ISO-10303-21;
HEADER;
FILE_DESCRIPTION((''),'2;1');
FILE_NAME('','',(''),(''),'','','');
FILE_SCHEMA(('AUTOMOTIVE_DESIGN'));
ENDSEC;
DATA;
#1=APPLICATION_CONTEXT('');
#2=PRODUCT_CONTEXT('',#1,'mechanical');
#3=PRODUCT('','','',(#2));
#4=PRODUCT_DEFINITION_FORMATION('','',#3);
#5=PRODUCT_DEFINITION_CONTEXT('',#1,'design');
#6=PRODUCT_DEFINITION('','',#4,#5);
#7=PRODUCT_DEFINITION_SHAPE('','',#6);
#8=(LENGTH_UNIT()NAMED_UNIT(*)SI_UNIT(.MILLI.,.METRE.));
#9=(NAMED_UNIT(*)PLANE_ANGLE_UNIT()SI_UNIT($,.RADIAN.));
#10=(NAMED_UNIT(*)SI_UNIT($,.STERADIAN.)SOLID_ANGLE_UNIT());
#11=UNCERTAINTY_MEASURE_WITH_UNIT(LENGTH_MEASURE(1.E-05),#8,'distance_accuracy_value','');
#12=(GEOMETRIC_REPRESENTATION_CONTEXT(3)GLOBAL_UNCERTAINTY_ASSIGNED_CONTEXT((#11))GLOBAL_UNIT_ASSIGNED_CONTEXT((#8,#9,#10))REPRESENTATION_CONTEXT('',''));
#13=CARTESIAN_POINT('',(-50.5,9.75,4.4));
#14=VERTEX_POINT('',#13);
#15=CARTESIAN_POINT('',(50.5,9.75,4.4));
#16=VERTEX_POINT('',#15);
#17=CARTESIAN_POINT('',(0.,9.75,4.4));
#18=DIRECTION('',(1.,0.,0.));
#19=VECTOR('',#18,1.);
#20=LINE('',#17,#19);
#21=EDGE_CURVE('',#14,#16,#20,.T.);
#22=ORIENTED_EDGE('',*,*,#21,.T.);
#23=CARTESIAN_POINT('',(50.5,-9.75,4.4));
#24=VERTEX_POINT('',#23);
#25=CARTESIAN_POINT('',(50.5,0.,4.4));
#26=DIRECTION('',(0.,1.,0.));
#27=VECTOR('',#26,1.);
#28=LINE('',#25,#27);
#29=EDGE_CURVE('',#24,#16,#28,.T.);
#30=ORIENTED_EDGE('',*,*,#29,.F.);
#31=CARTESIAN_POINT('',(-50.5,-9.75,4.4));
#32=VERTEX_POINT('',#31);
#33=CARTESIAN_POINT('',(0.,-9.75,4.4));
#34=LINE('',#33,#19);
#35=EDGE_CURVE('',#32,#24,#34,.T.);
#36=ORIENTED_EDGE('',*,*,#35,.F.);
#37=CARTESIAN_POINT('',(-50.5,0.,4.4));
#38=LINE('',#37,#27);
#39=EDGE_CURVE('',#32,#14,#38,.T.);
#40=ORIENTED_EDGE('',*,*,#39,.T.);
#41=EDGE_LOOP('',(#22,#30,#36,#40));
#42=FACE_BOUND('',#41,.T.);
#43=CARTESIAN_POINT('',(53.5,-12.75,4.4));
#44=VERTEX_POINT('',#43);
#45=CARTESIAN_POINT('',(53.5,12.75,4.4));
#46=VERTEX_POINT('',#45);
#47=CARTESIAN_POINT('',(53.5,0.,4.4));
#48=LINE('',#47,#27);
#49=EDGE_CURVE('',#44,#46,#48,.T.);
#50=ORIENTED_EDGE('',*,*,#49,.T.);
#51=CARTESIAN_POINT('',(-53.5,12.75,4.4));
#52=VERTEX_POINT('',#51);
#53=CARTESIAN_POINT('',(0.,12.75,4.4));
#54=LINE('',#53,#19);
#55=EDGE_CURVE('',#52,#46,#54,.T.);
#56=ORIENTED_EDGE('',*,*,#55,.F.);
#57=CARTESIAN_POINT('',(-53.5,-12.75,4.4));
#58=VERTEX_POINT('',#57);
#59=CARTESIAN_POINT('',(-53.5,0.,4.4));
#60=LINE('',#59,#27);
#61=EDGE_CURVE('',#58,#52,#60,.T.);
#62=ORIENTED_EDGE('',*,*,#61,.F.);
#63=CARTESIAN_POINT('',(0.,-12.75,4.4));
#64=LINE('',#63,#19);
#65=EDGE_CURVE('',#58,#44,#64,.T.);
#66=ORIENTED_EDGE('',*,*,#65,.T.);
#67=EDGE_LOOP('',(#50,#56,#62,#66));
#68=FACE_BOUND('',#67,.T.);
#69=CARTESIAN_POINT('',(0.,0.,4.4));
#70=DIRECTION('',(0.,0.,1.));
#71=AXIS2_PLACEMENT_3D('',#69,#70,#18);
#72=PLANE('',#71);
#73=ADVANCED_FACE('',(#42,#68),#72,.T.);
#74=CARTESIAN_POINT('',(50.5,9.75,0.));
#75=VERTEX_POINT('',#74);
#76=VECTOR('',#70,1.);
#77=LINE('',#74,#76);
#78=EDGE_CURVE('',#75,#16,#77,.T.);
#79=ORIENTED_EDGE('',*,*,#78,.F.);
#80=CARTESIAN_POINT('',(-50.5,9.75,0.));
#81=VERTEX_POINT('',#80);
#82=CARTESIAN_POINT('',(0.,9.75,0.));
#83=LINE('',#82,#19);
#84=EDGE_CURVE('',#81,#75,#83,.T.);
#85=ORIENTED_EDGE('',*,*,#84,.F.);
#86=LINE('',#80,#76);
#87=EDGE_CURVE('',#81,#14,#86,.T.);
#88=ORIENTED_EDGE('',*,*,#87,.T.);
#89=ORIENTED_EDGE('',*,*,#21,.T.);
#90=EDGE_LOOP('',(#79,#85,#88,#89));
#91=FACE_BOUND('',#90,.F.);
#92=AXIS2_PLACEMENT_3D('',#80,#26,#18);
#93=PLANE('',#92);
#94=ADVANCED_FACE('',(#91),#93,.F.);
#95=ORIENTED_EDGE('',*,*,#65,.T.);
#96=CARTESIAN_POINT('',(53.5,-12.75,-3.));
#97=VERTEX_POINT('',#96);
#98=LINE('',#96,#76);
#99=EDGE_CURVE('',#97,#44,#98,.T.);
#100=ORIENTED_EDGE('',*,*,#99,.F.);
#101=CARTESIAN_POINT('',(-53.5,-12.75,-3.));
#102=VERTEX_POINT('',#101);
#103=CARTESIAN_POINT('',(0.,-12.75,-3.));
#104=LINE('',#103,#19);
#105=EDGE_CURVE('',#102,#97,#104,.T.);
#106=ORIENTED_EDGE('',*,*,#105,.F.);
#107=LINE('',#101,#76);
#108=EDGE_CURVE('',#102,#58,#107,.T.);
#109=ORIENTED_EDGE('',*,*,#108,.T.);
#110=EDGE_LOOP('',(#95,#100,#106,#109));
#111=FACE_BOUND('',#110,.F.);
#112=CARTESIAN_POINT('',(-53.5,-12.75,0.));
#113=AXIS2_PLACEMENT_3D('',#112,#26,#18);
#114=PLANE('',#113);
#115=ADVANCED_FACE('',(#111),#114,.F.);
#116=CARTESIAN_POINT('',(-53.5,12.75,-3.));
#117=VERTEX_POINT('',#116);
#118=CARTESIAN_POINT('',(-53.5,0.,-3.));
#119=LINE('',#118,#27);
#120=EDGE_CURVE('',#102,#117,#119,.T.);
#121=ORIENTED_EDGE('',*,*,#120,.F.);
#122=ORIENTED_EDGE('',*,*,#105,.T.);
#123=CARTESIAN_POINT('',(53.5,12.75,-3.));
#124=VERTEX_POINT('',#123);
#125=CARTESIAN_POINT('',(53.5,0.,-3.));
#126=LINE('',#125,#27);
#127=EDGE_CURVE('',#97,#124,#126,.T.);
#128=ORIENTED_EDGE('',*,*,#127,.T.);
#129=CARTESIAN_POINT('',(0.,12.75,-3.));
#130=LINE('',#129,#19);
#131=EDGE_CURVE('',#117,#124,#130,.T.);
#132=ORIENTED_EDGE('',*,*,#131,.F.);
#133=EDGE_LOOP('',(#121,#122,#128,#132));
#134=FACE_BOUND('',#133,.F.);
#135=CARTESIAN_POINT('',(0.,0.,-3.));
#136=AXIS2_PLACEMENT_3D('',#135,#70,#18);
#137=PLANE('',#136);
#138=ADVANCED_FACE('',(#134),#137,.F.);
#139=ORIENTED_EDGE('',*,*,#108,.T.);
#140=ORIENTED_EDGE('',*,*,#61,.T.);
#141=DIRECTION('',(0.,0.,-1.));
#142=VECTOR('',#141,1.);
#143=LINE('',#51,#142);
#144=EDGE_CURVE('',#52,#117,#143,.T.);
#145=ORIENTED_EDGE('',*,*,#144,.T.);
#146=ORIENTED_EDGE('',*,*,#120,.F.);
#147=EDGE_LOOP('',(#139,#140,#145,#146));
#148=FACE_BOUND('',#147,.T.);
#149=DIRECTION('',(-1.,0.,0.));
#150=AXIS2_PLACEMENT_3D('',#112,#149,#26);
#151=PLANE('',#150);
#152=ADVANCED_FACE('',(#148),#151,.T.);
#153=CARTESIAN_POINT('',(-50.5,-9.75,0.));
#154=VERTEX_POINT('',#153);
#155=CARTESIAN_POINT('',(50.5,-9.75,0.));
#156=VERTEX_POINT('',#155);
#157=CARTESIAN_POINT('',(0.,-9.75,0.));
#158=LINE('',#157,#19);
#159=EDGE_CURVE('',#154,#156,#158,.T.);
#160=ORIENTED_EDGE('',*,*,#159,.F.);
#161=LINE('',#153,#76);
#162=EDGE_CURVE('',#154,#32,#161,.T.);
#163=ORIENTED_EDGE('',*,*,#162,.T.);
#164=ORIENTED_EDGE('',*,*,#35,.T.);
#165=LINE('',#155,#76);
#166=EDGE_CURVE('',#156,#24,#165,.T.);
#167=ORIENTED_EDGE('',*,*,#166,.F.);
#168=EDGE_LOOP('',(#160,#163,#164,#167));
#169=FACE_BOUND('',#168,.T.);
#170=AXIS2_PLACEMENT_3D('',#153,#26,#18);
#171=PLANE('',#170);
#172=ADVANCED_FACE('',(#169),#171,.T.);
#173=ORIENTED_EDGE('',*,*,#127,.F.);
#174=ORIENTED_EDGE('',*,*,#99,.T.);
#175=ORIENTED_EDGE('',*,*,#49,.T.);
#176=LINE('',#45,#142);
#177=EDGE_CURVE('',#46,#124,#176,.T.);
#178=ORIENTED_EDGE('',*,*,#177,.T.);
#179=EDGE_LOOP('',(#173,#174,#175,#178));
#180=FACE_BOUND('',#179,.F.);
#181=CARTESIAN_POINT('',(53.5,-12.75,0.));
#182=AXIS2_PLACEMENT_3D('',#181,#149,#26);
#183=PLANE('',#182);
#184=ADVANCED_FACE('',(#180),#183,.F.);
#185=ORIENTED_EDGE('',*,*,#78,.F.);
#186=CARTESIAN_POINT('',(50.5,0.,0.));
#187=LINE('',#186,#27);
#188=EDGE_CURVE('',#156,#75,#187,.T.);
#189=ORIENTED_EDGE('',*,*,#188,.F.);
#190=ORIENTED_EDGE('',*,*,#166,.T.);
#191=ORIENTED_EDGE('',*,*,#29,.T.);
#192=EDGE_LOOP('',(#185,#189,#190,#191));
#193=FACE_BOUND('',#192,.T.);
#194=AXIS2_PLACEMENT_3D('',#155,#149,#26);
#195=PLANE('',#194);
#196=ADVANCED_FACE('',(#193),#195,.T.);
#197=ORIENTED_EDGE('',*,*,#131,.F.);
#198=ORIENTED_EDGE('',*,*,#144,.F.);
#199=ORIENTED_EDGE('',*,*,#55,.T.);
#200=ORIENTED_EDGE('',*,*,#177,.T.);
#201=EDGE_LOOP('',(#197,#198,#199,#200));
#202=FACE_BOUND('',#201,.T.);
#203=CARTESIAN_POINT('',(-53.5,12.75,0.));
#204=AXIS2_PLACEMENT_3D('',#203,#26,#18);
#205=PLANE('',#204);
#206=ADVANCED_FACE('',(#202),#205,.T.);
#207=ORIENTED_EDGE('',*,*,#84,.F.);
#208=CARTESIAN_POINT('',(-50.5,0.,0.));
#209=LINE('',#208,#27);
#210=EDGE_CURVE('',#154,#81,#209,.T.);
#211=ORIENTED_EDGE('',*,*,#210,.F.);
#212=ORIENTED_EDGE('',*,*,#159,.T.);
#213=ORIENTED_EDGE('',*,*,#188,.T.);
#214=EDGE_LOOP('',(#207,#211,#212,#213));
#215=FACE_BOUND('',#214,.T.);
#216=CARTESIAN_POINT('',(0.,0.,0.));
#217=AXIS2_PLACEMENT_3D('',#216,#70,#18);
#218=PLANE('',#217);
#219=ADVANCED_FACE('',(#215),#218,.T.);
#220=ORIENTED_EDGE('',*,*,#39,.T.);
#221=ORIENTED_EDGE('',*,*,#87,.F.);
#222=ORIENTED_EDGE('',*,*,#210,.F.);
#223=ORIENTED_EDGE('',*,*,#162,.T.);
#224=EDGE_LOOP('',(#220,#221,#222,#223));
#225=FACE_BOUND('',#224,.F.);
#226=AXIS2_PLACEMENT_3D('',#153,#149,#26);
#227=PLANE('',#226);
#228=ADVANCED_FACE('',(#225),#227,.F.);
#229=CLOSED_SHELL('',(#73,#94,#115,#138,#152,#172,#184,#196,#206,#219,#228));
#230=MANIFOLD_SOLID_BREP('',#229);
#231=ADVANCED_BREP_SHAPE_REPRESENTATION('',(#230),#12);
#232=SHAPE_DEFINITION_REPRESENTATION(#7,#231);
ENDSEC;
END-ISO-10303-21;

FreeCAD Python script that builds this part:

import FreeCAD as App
import Part
import Sketcher
from FreeCAD import Vector
Q = App.Units.Quantity

doc = App.newDocument("Part")
body = doc.addObject("PartDesign::Body", "Body")

# Sketch on XY plane
sketch1 = doc.addObject("Sketcher::SketchObject", "Sketch")
body.addObject(sketch1)
sketch1.AttachmentSupport = (doc.XY_Plane, [""])
sketch1.MapMode = "FlatFace"
sketch1.addGeometry([
    Part.LineSegment(Vector(-54, 13, 0), Vector(-54, -13, 0)),
    Part.LineSegment(Vector(-54, -13, 0), Vector(54, -13, 0)),
    Part.LineSegment(Vector(54, -13, 0), Vector(54, 13, 0)),
    Part.LineSegment(Vector(54, 13, 0), Vector(-54, 13, 0)),
], False)
sketch1.addConstraint([
    Sketcher.Constraint("Coincident", 0, 2, 1, 1),
    Sketcher.Constraint("Coincident", 1, 2, 2, 1),
    Sketcher.Constraint("Coincident", 2, 2, 3, 1),
    Sketcher.Constraint("Coincident", 3, 2, 0, 1),
    Sketcher.Constraint("Vertical", 0),
    Sketcher.Constraint("Horizontal", 1),
    Sketcher.Constraint("Vertical", 2),
    Sketcher.Constraint("Horizontal", 3),
    Sketcher.Constraint("Symmetric", 0, 2, 2, 2, -1, 1),
    Sketcher.Constraint("DistanceX", 1, 1, 1, 2, Q("107 mm")),
    Sketcher.Constraint("DistanceY", 0, 2, 0, 1, Q("25.5 mm")),
])
pad1 = doc.addObject("PartDesign::Pad", "Pad")
body.addObject(pad1)
pad1.Profile = sketch1
pad1.Length = 3
pad1.Reversed = True

# Sketch on XY plane
sketch2 = doc.addObject("Sketcher::SketchObject", "Sketch001")
body.addObject(sketch2)
sketch2.AttachmentSupport = (doc.XY_Plane, [""])
sketch2.MapMode = "FlatFace"
sketch2.addGeometry([
    Part.LineSegment(Vector(-54, 13, 0), Vector(-54, -13, 0)),  # 0
    Part.LineSegment(Vector(-54, -13, 0), Vector(54, -13, 0)),  # 1
    Part.LineSegment(Vector(54, -13, 0), Vector(54, 13, 0)),  # 2
    Part.LineSegment(Vector(54, 13, 0), Vector(-54, 13, 0)),  # 3
    Part.LineSegment(Vector(50, -10, 0), Vector(-50, -10, 0)),  # 4
    Part.LineSegment(Vector(-50, -10, 0), Vector(-50, 10, 0)),  # 5
    Part.LineSegment(Vector(-50, 10, 0), Vector(50, 10, 0)),  # 6
    Part.LineSegment(Vector(50, 10, 0), Vector(50, -10, 0)),  # 7
], False)
sketch2.addConstraint([
    Sketcher.Constraint("Coincident", 0, 2, 1, 1),
    Sketcher.Constraint("Coincident", 1, 2, 2, 1),
    Sketcher.Constraint("Coincident", 2, 2, 3, 1),
    Sketcher.Constraint("Coincident", 3, 2, 0, 1),
    Sketcher.Constraint("Coincident", 4, 2, 5, 1),
    Sketcher.Constraint("Coincident", 5, 2, 6, 1),
    Sketcher.Constraint("Coincident", 6, 2, 7, 1),
    Sketcher.Constraint("Coincident", 7, 2, 4, 1),
    Sketcher.Constraint("Vertical", 0),
    Sketcher.Constraint("Horizontal", 1),
    Sketcher.Constraint("Vertical", 2),
    Sketcher.Constraint("Horizontal", 3),
    Sketcher.Constraint("Horizontal", 4),
    Sketcher.Constraint("Vertical", 5),
    Sketcher.Constraint("Horizontal", 6),
    Sketcher.Constraint("Vertical", 7),
    Sketcher.Constraint("Symmetric", 0, 2, 2, 2, -1, 1),
    Sketcher.Constraint("Symmetric", 4, 2, 6, 2, -1, 1),
    Sketcher.Constraint("DistanceX", 1, 1, 1, 2, Q("107 mm")),
    Sketcher.Constraint("DistanceX", 4, 2, 4, 1, Q("101 mm")),
    Sketcher.Constraint("DistanceY", 0, 2, 0, 1, Q("25.5 mm")),
    Sketcher.Constraint("DistanceY", 5, 1, 5, 2, Q("19.5 mm")),
])
pad2 = doc.addObject("PartDesign::Pad", "Pad001")
body.addObject(pad2)
pad2.Profile = sketch2
pad2.Length = 4.4

doc.recompute()
